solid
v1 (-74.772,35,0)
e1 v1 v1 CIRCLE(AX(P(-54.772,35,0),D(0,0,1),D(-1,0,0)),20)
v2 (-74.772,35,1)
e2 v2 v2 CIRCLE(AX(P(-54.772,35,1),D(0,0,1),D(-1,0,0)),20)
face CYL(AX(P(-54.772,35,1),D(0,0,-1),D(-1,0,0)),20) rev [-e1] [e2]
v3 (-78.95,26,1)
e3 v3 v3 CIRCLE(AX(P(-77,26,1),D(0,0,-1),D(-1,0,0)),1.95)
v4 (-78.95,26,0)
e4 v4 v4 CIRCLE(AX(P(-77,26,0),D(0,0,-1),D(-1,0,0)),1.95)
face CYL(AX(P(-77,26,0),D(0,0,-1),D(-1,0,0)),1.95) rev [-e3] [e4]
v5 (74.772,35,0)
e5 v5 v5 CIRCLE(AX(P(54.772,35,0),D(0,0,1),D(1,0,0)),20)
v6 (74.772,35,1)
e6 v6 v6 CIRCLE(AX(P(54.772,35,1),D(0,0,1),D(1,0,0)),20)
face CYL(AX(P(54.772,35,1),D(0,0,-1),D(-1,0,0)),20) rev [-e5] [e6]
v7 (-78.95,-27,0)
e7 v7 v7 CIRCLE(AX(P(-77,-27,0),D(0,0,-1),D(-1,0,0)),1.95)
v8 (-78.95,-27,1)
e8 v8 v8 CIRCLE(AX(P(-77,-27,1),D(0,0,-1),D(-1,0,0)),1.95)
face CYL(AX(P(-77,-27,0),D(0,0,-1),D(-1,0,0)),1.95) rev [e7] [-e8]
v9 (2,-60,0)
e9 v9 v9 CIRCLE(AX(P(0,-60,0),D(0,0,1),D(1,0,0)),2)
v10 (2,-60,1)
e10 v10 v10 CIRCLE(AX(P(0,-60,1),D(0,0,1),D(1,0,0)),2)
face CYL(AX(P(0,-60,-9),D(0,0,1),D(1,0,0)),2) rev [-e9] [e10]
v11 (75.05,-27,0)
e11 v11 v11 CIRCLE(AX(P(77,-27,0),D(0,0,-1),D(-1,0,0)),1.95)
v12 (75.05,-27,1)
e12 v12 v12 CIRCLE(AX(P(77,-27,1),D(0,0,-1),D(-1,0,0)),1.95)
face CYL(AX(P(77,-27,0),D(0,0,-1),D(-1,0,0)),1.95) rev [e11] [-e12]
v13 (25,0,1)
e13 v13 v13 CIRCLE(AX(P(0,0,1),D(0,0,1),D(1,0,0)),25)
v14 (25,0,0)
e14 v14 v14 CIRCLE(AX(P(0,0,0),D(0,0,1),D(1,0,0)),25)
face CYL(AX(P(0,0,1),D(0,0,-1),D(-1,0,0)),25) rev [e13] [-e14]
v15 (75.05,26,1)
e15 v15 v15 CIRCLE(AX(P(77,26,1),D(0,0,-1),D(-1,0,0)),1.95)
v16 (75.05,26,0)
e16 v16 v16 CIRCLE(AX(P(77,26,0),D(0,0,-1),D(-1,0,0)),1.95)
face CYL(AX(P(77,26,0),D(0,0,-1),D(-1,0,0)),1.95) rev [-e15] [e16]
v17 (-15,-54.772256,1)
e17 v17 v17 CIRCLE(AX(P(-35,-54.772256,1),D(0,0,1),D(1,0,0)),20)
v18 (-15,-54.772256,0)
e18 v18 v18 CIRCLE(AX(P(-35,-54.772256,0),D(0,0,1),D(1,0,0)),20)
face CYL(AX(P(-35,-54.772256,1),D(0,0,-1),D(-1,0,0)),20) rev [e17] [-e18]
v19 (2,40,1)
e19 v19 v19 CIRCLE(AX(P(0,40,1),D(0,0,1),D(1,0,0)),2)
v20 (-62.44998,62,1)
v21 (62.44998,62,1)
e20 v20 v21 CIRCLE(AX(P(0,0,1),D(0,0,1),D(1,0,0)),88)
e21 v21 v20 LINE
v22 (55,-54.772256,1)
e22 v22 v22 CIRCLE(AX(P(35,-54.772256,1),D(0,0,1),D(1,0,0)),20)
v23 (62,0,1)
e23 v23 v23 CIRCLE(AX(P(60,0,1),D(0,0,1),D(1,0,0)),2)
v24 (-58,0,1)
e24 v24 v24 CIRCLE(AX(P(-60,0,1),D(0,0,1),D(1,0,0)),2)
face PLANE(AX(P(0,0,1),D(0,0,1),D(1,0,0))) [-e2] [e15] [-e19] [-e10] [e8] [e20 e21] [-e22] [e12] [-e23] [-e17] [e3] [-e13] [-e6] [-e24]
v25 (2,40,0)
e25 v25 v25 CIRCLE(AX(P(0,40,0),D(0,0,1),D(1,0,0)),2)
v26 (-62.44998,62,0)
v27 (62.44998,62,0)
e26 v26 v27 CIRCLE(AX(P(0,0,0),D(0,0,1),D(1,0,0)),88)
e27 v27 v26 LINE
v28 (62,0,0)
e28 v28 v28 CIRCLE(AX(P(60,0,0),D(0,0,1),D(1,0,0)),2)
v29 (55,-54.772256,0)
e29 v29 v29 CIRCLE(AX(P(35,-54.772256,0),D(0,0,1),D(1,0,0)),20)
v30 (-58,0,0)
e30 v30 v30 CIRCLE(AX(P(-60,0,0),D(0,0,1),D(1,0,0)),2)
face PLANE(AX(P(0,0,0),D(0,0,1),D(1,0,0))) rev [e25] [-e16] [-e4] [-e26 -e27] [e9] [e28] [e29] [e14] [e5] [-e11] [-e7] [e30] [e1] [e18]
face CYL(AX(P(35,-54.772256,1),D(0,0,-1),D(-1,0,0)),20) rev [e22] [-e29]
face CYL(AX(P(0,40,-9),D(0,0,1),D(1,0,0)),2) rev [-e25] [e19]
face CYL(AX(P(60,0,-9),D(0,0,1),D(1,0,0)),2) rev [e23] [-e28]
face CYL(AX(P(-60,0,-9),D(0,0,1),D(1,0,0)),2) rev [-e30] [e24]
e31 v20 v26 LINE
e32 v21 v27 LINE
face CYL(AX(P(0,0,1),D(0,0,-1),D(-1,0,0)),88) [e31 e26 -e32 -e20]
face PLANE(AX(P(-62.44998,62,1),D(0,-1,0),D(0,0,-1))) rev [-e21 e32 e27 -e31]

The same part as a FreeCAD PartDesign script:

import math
import FreeCAD as App
import Part
import Sketcher
from FreeCAD import Vector

doc = App.newDocument("Part")
params = doc.addObject("Spreadsheet::Sheet", "Params")
for row, (alias, value) in enumerate([
    ("sketch1_diameter", "40 mm"),
    ("sketch1_diameter2", "50 mm"),
    ("sketch1_radius", "88 mm"),
    ("pad1_length", "1 mm"),
    ("sketch2_diameter", "3.9 mm"),
    ("hole_diameter", "3.9 mm"),
    ("sketch3_diameter", "4 mm"),
    ("pocket1_length", "10 mm"),
], start=1):
    params.set(f"A{row}", alias)
    params.set(f"B{row}", "=" + value)
    params.setAlias(f"B{row}", alias)

body = doc.addObject("PartDesign::Body", "Body")

# Sketch on XY plane
sketch1 = body.newObject("Sketcher::SketchObject", "Sketch")
sketch1.AttachmentSupport = (doc.getObject("XY_Plane"), [""])
sketch1.MapMode = "FlatFace"
sketch1.addGeometry(Part.LineSegment(Vector(62, 62, 0), Vector(-62, 62, 0)), False)
sketch1.addGeometry(Part.ArcOfCircle(Part.Circle(Vector(0, 0, 0), Vector(0, 0, 1), 88), math.radians(135), math.radians(405)), False)
sketch1.addGeometry(Part.Circle(Vector(35, -55, 0), Vector(0, 0, 1), 20), False)
sketch1.addGeometry(Part.Circle(Vector(-35, -55, 0), Vector(0, 0, 1), 20), False)
sketch1.addGeometry(Part.Circle(Vector(55, 35, 0), Vector(0, 0, 1), 20), False)
sketch1.addGeometry(Part.Circle(Vector(0, 0, 0), Vector(0, 0, 1), 25), False)
sketch1.addGeometry(Part.Circle(Vector(-55, 35, 0), Vector(0, 0, 1), 20), False)
sketch1.addConstraint(Sketcher.Constraint("Coincident", 0, 1, 1, 2))
sketch1.addConstraint(Sketcher.Constraint("Coincident", 1, 1, 0, 2))
sketch1.addConstraint(Sketcher.Constraint("Horizontal", 0))
sketch1.addConstraint(Sketcher.Constraint("Coincident", 1, 3, -1, 1))
sketch1.addConstraint(Sketcher.Constraint("Coincident", 5, 3, -1, 1))
sketch1.addConstraint(Sketcher.Constraint("Equal", 2, 3))
sketch1.addConstraint(Sketcher.Constraint("Equal", 3, 4))
sketch1.addConstraint(Sketcher.Constraint("Equal", 4, 6))
sketch1.addConstraint(Sketcher.Constraint("Symmetric", 2, 3, 3, 3, -2))
sketch1.addConstraint(Sketcher.Constraint("Symmetric", 4, 3, 6, 3, -2))
sketch1.addConstraint(Sketcher.Constraint("Diameter", 2, 40.0))
sketch1.addConstraint(Sketcher.Constraint("Diameter", 5, 50.0))
sketch1.addConstraint(Sketcher.Constraint("Radius", 1, 88.0))
sketch1.addConstraint(Sketcher.Constraint("DistanceX", -1, 1, 2, 3, 35.0))
sketch1.addConstraint(Sketcher.Constraint("DistanceY", -1, 1, 4, 3, 35.0))
sketch1.addConstraint(Sketcher.Constraint("DistanceY", -1, 1, 0, 1, 62.0))
sketch1.addConstraint(Sketcher.Constraint("DistanceX", -1, 1, 4, 3, 54.772))
sketch1.addConstraint(Sketcher.Constraint("DistanceY", 2, 3, -1, 1, 54.772256))
sketch1.setExpression("Constraints[10]", "Params.sketch1_diameter")
sketch1.setExpression("Constraints[11]", "Params.sketch1_diameter2")
sketch1.setExpression("Constraints[12]", "Params.sketch1_radius")
pad1 = body.newObject("PartDesign::Pad", "Pad")
pad1.Profile = sketch1
pad1.setExpression("Length", "Params.pad1_length")

# Sketch on XY plane
sketch2 = body.newObject("Sketcher::SketchObject", "Sketch001")
sketch2.AttachmentSupport = (doc.getObject("XY_Plane"), [""])
sketch2.MapMode = "FlatFace"
sketch2.addGeometry(Part.Circle(Vector(77, 26, 0), Vector(0, 0, 1), 1.9), False)
sketch2.addGeometry(Part.Circle(Vector(77, -27, 0), Vector(0, 0, 1), 1.9), False)
sketch2.addGeometry(Part.Circle(Vector(-77, -27, 0), Vector(0, 0, 1), 1.9), False)
sketch2.addGeometry(Part.Circle(Vector(-77, 26, 0), Vector(0, 0, 1), 1.9), False)
sketch2.addConstraint(Sketcher.Constraint("Equal", 0, 1))
sketch2.addConstraint(Sketcher.Constraint("Equal", 1, 2))
sketch2.addConstraint(Sketcher.Constraint("Equal", 2, 3))
sketch2.addConstraint(Sketcher.Constraint("Symmetric", 1, 3, 2, 3, -2))
sketch2.addConstraint(Sketcher.Constraint("Symmetric", 0, 3, 3, 3, -2))
sketch2.addConstraint(Sketcher.Constraint("Vertical", 0, 3, 1, 3))
sketch2.addConstraint(Sketcher.Constraint("Diameter", 0, 3.9))
sketch2.addConstraint(Sketcher.Constraint("DistanceX", -1, 1, 0, 3, 77.0))
sketch2.addConstraint(Sketcher.Constraint("DistanceY", -1, 1, 0, 3, 26.0))
sketch2.addConstraint(Sketcher.Constraint("DistanceY", 1, 3, -1, 1, 27.0))
sketch2.setExpression("Constraints[6]", "Params.sketch2_diameter")
doc.recompute()
hole = body.newObject("PartDesign::Hole", "Hole")
hole.Profile = sketch2
hole.ThreadType = "None"
hole.setExpression("Diameter", "Params.hole_diameter")
hole.DepthType = "ThroughAll"
hole.Reversed = True

# Sketch on XY plane
sketch3 = body.newObject("Sketcher::SketchObject", "Sketch002")
sketch3.AttachmentSupport = (doc.getObject("XY_Plane"), [""])
sketch3.MapMode = "FlatFace"
sketch3.AttachmentOffset = App.Placement(Vector(0, 0, 1), App.Rotation())
sketch3.addGeometry(Part.Circle(Vector(-60, 0, 0), Vector(0, 0, 1), 2), False)
sketch3.addGeometry(Part.Circle(Vector(0, 40, 0), Vector(0, 0, 1), 2), False)
sketch3.addGeometry(Part.Circle(Vector(60, 0, 0), Vector(0, 0, 1), 2), False)
sketch3.addGeometry(Part.Circle(Vector(0, -60, 0), Vector(0, 0, 1), 2), False)
sketch3.addConstraint(Sketcher.Constraint("Equal", 0, 1))
sketch3.addConstraint(Sketcher.Constraint("Equal", 1, 2))
sketch3.addConstraint(Sketcher.Constraint("Equal", 2, 3))
sketch3.addConstraint(Sketcher.Constraint("Symmetric", 0, 3, 2, 3, -1, 1))
sketch3.addConstraint(Sketcher.Constraint("PointOnObject", 0, 3, -1))
sketch3.addConstraint(Sketcher.Constraint("PointOnObject", 1, 3, -2))
sketch3.addConstraint(Sketcher.Constraint("PointOnObject", 3, 3, -2))
sketch3.addConstraint(Sketcher.Constraint("Diameter", 0, 4.0))
sketch3.addConstraint(Sketcher.Constraint("DistanceX", 0, 3, -1, 1, 60.0))
sketch3.addConstraint(Sketcher.Constraint("DistanceY", -1, 1, 1, 3, 40.0))
sketch3.addConstraint(Sketcher.Constraint("DistanceY", 3, 3, -1, 1, 60.0))
sketch3.setExpression("Constraints[7]", "Params.sketch3_diameter")
pocket1 = body.newObject("PartDesign::Pocket", "Pocket")
pocket1.Profile = sketch3
pocket1.setExpression("Length", "Params.pocket1_length")

doc.recompute()
